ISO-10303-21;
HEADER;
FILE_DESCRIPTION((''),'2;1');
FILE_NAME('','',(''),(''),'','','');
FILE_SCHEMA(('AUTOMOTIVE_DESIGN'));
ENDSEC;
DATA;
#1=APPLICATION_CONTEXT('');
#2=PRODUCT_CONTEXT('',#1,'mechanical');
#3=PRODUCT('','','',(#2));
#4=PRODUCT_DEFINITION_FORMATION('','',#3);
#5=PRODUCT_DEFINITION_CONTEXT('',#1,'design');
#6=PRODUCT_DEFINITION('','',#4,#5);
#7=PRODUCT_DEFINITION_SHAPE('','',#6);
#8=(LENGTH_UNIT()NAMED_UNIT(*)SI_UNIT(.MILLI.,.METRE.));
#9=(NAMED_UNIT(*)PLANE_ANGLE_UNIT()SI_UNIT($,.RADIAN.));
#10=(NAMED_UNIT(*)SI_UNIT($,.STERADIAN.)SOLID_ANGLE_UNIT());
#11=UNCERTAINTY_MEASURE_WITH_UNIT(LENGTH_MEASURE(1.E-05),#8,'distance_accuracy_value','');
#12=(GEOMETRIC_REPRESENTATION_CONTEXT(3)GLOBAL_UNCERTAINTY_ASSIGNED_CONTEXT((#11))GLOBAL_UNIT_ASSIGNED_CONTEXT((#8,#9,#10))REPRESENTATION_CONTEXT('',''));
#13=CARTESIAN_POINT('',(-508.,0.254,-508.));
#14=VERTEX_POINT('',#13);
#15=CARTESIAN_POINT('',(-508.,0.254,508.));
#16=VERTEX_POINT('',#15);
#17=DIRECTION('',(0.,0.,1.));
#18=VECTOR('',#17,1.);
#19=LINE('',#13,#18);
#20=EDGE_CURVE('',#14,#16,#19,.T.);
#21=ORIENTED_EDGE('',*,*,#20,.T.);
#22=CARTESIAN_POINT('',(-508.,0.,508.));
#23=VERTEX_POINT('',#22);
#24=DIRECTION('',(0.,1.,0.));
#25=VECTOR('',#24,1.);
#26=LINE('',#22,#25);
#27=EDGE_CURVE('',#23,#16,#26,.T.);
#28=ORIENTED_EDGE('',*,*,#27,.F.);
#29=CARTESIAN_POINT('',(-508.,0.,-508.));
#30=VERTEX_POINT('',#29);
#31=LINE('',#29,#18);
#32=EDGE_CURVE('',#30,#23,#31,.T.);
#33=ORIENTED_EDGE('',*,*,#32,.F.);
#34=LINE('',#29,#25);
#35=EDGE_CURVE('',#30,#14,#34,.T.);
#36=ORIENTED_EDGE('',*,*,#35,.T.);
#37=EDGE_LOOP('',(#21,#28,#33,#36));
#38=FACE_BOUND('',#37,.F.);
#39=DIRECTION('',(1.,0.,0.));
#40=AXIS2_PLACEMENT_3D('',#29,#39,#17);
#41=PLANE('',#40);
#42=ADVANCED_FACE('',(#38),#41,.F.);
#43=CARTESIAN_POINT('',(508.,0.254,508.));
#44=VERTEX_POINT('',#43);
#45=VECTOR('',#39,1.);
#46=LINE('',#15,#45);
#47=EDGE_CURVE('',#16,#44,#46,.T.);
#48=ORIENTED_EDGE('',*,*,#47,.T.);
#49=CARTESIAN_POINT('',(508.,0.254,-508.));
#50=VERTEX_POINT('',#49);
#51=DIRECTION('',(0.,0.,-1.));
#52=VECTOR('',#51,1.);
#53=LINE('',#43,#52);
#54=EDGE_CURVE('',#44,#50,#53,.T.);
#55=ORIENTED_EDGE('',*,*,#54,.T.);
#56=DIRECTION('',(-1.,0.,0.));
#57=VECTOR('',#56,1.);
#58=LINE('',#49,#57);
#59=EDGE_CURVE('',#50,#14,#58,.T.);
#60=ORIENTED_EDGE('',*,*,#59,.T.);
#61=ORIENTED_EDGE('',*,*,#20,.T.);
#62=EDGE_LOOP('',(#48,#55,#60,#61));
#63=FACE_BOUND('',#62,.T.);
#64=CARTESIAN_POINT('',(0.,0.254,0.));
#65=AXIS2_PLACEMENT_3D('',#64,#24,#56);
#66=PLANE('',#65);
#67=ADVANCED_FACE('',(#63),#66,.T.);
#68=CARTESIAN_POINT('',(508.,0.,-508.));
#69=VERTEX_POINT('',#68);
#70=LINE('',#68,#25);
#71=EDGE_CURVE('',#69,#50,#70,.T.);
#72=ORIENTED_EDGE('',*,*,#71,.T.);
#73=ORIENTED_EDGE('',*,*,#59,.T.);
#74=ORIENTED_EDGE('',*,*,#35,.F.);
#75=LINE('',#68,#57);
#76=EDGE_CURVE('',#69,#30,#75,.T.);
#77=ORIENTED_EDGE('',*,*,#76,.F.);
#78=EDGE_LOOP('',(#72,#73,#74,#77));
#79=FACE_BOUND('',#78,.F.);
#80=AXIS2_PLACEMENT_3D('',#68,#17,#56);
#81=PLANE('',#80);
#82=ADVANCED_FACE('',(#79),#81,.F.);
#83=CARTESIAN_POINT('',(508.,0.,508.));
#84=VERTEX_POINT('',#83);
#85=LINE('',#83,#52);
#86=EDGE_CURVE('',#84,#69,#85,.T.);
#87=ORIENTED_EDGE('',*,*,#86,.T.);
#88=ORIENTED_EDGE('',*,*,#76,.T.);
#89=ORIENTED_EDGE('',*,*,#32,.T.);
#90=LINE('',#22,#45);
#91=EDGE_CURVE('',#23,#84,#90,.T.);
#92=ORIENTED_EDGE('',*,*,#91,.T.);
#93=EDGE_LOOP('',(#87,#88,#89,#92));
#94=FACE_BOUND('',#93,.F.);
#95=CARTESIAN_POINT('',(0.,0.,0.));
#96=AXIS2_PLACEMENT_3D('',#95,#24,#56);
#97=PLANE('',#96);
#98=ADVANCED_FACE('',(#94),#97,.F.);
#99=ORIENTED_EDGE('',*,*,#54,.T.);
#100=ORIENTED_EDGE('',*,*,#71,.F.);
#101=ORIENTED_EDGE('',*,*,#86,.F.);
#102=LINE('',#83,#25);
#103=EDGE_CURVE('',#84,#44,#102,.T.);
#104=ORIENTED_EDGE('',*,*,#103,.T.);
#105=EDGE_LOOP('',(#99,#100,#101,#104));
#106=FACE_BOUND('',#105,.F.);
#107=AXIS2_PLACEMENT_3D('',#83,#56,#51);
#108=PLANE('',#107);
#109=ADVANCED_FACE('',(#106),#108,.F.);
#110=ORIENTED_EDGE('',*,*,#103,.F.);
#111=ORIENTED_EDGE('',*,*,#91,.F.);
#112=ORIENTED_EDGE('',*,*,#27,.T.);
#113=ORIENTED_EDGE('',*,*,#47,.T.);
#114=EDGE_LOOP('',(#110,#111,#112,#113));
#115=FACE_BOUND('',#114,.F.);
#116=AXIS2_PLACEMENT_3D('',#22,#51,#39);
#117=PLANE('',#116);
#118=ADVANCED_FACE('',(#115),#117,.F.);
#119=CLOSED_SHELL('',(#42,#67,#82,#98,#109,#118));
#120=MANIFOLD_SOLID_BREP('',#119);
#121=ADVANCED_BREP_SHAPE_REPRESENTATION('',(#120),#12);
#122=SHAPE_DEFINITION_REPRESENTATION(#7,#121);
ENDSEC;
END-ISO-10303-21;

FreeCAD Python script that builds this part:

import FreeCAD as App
import Part
import Sketcher

V = App.Vector
Q = App.Units.Quantity

doc = App.newDocument("Part")
body = doc.addObject("PartDesign::Body", "Body")

sketch1 = doc.addObject("Sketcher::SketchObject", "Sketch")
body.addObject(sketch1)
sketch1.AttachmentSupport = (doc.XZ_Plane, [""])
sketch1.MapMode = "FlatFace"
sketch1.addGeometry([
    Part.LineSegment(V(-508, -508, 0), V(-508, 508, 0)),
    Part.LineSegment(V(-508, 508, 0), V(508, 508, 0)),
    Part.LineSegment(V(508, 508, 0), V(508, -508, 0)),
    Part.LineSegment(V(508, -508, 0), V(-508, -508, 0)),
], False)
sketch1.addConstraint([
    Sketcher.Constraint("Coincident", 0, 2, 1, 1),
    Sketcher.Constraint("Coincident", 1, 2, 2, 1),
    Sketcher.Constraint("Coincident", 2, 2, 3, 1),
    Sketcher.Constraint("Coincident", 3, 2, 0, 1),
    Sketcher.Constraint("Vertical", 0),
    Sketcher.Constraint("Horizontal", 1),
    Sketcher.Constraint("Vertical", 2),
    Sketcher.Constraint("Horizontal", 3),
    Sketcher.Constraint("Symmetric", 0, 2, 2, 2, -1, 1),
    Sketcher.Constraint("Equal", 3, 0),
    Sketcher.Constraint("DistanceX", 1, 1, 1, 2, Q("40 in")),
])
pad1 = doc.addObject("PartDesign::Pad", "Pad")
body.addObject(pad1)
pad1.Profile = sketch1
pad1.Length = Q("0.01 in")
pad1.Reversed = True

doc.recompute()
